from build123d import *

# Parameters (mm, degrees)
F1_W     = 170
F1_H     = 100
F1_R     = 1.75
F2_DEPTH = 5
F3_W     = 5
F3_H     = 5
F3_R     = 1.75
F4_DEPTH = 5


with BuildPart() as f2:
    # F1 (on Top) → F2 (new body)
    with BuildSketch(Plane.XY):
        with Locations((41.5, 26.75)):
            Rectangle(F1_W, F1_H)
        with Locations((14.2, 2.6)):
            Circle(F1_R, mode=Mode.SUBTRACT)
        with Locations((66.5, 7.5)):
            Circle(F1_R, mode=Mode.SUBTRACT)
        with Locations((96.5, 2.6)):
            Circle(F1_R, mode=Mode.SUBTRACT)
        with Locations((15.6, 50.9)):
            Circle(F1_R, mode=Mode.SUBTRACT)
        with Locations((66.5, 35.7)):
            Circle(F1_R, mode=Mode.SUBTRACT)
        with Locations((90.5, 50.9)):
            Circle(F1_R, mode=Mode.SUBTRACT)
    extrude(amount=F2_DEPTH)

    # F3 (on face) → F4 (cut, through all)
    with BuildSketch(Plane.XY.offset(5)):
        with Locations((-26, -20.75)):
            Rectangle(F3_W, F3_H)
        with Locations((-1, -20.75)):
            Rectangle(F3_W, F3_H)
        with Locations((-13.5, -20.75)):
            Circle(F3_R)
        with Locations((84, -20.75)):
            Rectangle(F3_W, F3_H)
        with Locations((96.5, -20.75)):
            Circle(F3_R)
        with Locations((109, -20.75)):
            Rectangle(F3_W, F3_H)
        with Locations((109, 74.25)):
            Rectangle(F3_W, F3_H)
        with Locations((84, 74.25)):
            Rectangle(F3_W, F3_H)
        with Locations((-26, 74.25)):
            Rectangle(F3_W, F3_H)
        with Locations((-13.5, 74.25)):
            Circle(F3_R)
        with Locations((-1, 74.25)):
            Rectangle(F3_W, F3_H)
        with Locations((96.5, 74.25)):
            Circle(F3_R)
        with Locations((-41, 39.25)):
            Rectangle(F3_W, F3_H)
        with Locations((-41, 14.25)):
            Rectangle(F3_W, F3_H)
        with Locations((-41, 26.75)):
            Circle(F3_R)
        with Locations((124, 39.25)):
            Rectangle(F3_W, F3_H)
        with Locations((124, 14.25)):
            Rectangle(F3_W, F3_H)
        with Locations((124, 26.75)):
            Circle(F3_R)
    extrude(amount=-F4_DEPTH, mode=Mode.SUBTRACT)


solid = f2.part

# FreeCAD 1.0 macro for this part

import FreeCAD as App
import Part
import Sketcher

V = App.Vector
Q = App.Units.Quantity


def add_polygon(sketch, points):
    """Adds a closed chain of lines whose ends are joined by coincident constraints."""
    first, n = sketch.GeometryCount, len(points)
    for a, b in zip(points, points[1:] + points[:1]):
        sketch.addGeometry(Part.LineSegment(App.Vector(*a, 0), App.Vector(*b, 0)), False)
    for i in range(n):
        sketch.addConstraint(Sketcher.Constraint("Coincident", first + i, 2, first + (i + 1) % n, 1))

doc = App.newDocument("Part")
body = doc.addObject("PartDesign::Body", "Body")

# Sketch on XY plane
sketch1 = body.newObject("Sketcher::SketchObject", "Sketch")
sketch1.AttachmentSupport = (doc.getObject("XY_Plane"), [""])
sketch1.MapMode = "FlatFace"
add_polygon(sketch1, [(-43.5, 76.8), (-43.5, -23.2), (126.5, -23.2), (126.5, 76.8)])  # lines 0-3
sketch1.addGeometry(Part.Circle(V(14.2, 2.6, 0), V(0, 0, 1), 1.8), False)  # 4
sketch1.addGeometry(Part.Circle(V(66.5, 7.5, 0), V(0, 0, 1), 1.8), False)  # 5
sketch1.addGeometry(Part.Circle(V(96.5, 2.6, 0), V(0, 0, 1), 1.8), False)  # 6
sketch1.addGeometry(Part.Circle(V(15.6, 50.9, 0), V(0, 0, 1), 1.8), False)  # 7
sketch1.addGeometry(Part.Circle(V(66.5, 35.7, 0), V(0, 0, 1), 1.8), False)  # 8
sketch1.addGeometry(Part.Circle(V(90.5, 50.9, 0), V(0, 0, 1), 1.8), False)  # 9
sketch1.addConstraint([
    Sketcher.Constraint("Vertical", 0),
    Sketcher.Constraint("Horizontal", 1),
    Sketcher.Constraint("Vertical", 2),
    Sketcher.Constraint("Horizontal", 3),
    Sketcher.Constraint("Equal", 4, 5),
    Sketcher.Constraint("Equal", 5, 6),
    Sketcher.Constraint("Equal", 6, 7),
    Sketcher.Constraint("Equal", 7, 8),
    Sketcher.Constraint("Equal", 8, 9),
    Sketcher.Constraint("Horizontal", 4, 3, 6, 3),
    Sketcher.Constraint("Horizontal", 7, 3, 9, 3),
    Sketcher.Constraint("Vertical", 5, 3, 8, 3),
    Sketcher.Constraint("Diameter", 4, Q("3.5 mm")),
    Sketcher.Constraint("DistanceX", 1, 1, 1, 2, Q("170 mm")),
    Sketcher.Constraint("DistanceY", 0, 2, 0, 1, Q("100 mm")),
    Sketcher.Constraint("DistanceX", 5, 3, 6, 3, Q("30 mm")),
    Sketcher.Constraint("DistanceX", 8, 3, 9, 3, Q("24 mm")),
    Sketcher.Constraint("DistanceX", 0, 2, 5, 3, Q("110 mm")),
    Sketcher.Constraint("DistanceX", -1, 1, 4, 3, Q("14.2 mm")),
    Sketcher.Constraint("DistanceY", -1, 1, 4, 3, Q("2.6 mm")),
    Sketcher.Constraint("DistanceX", -1, 1, 5, 3, Q("66.5 mm")),
    Sketcher.Constraint("DistanceY", -1, 1, 5, 3, Q("7.5 mm")),
    Sketcher.Constraint("DistanceX", -1, 1, 7, 3, Q("15.6 mm")),
    Sketcher.Constraint("DistanceY", -1, 1, 7, 3, Q("50.9 mm")),
    Sketcher.Constraint("DistanceY", -1, 1, 8, 3, Q("35.7 mm")),
    Sketcher.Constraint("DistanceY", 0, 2, -1, 1, Q("23.25 mm")),
])
pad1 = body.newObject("PartDesign::Pad", "Pad")
pad1.Profile = sketch1
pad1.Length = 5

# Sketch on XY plane
sketch2 = body.newObject("Sketcher::SketchObject", "Sketch001")
sketch2.AttachmentSupport = (doc.getObject("XY_Plane"), [""])
sketch2.MapMode = "FlatFace"
sketch2.AttachmentOffset = App.Placement(V(0, 0, 5), App.Rotation())
add_polygon(sketch2, [(-28.5, -18.2), (-28.5, -23.2), (-23.5, -23.2), (-23.5, -18.2)])  # lines 0-3
add_polygon(sketch2, [(-3.5, -18.2), (-3.5, -23.2), (1.5, -23.2), (1.5, -18.2)])  # lines 4-7
sketch2.addGeometry(Part.Circle(V(-13.5, -20.8, 0), V(0, 0, 1), 1.8), False)  # 8
add_polygon(sketch2, [(81.5, -18.2), (81.5, -23.2), (86.5, -23.2), (86.5, -18.2)])  # lines 9-12
sketch2.addGeometry(Part.Circle(V(96.5, -20.8, 0), V(0, 0, 1), 1.8), False)  # 13
add_polygon(sketch2, [(106.5, -18.2), (106.5, -23.2), (111.5, -23.2), (111.5, -18.2)])  # lines 14-17
add_polygon(sketch2, [(106.5, 76.8), (106.5, 71.8), (111.5, 71.8), (111.5, 76.8)])  # lines 18-21
add_polygon(sketch2, [(81.5, 76.8), (81.5, 71.8), (86.5, 71.8), (86.5, 76.8)])  # lines 22-25
add_polygon(sketch2, [(-28.5, 76.8), (-28.5, 71.8), (-23.5, 71.8), (-23.5, 76.8)])  # lines 26-29
sketch2.addGeometry(Part.Circle(V(-13.5, 74.2, 0), V(0, 0, 1), 1.8), False)  # 30
add_polygon(sketch2, [(-3.5, 76.8), (-3.5, 71.8), (1.5, 71.8), (1.5, 76.8)])  # lines 31-34
sketch2.addGeometry(Part.Circle(V(96.5, 74.2, 0), V(0, 0, 1), 1.8), False)  # 35
add_polygon(sketch2, [(-43.5, 41.8), (-43.5, 36.8), (-38.5, 36.8), (-38.5, 41.8)])  # lines 36-39
add_polygon(sketch2, [(-43.5, 16.8), (-43.5, 11.8), (-38.5, 11.8), (-38.5, 16.8)])  # lines 40-43
sketch2.addGeometry(Part.Circle(V(-41, 26.8, 0), V(0, 0, 1), 1.8), False)  # 44
add_polygon(sketch2, [(121.5, 41.8), (121.5, 36.8), (126.5, 36.8), (126.5, 41.8)])  # lines 45-48
add_polygon(sketch2, [(121.5, 16.8), (121.5, 11.8), (126.5, 11.8), (126.5, 16.8)])  # lines 49-52
sketch2.addGeometry(Part.Circle(V(124, 26.8, 0), V(0, 0, 1), 1.8), False)  # 53
sketch2.addConstraint([
    Sketcher.Constraint("Vertical", 0),
    Sketcher.Constraint("Horizontal", 1),
    Sketcher.Constraint("Vertical", 2),
    Sketcher.Constraint("Horizontal", 3),
    Sketcher.Constraint("Vertical", 4),
    Sketcher.Constraint("Horizontal", 5),
    Sketcher.Constraint("Vertical", 6),
    Sketcher.Constraint("Horizontal", 7),
    Sketcher.Constraint("Vertical", 9),
    Sketcher.Constraint("Horizontal", 10),
    Sketcher.Constraint("Vertical", 11),
    Sketcher.Constraint("Horizontal", 12),
    Sketcher.Constraint("Vertical", 14),
    Sketcher.Constraint("Horizontal", 15),
    Sketcher.Constraint("Vertical", 16),
    Sketcher.Constraint("Horizontal", 17),
    Sketcher.Constraint("Vertical", 18),
    Sketcher.Constraint("Horizontal", 19),
    Sketcher.Constraint("Vertical", 20),
    Sketcher.Constraint("Horizontal", 21),
    Sketcher.Constraint("Vertical", 22),
    Sketcher.Constraint("Horizontal", 23),
    Sketcher.Constraint("Vertical", 24),
    Sketcher.Constraint("Horizontal", 25),
    Sketcher.Constraint("Vertical", 26),
    Sketcher.Constraint("Horizontal", 27),
    Sketcher.Constraint("Vertical", 28),
    Sketcher.Constraint("Horizontal", 29),
    Sketcher.Constraint("Vertical", 31),
    Sketcher.Constraint("Horizontal", 32),
    Sketcher.Constraint("Vertical", 33),
    Sketcher.Constraint("Horizontal", 34),
    Sketcher.Constraint("Vertical", 36),
    Sketcher.Constraint("Horizontal", 37),
    Sketcher.Constraint("Vertical", 38),
    Sketcher.Constraint("Horizontal", 39),
    Sketcher.Constraint("Vertical", 40),
    Sketcher.Constraint("Horizontal", 41),
    Sketcher.Constraint("Vertical", 42),
    Sketcher.Constraint("Horizontal", 43),
    Sketcher.Constraint("Vertical", 45),
    Sketcher.Constraint("Horizontal", 46),
    Sketcher.Constraint("Vertical", 47),
    Sketcher.Constraint("Horizontal", 48),
    Sketcher.Constraint("Vertical", 49),
    Sketcher.Constraint("Horizontal", 50),
    Sketcher.Constraint("Vertical", 51),
    Sketcher.Constraint("Horizontal", 52),
    Sketcher.Constraint("Equal", 8, 13),
    Sketcher.Constraint("Equal", 13, 30),
    Sketcher.Constraint("Equal", 30, 35),
    Sketcher.Constraint("Equal", 35, 44),
    Sketcher.Constraint("Equal", 44, 53),
    Sketcher.Constraint("Horizontal", 8, 3, 13, 3),
    Sketcher.Constraint("Horizontal", 30, 3, 35, 3),
    Sketcher.Constraint("Horizontal", 44, 3, 53, 3),
    Sketcher.Constraint("Horizontal", 1, 2, 4, 2),
    Sketcher.Constraint("Horizontal", 3, 2, 6, 2),
    Sketcher.Constraint("Horizontal", 5, 2, 9, 2),
    Sketcher.Constraint("Horizontal", 7, 2, 11, 2),
    Sketcher.Constraint("Horizontal", 10, 2, 14, 2),
    Sketcher.Constraint("Horizontal", 12, 2, 16, 2),
    Sketcher.Constraint("Horizontal", 19, 2, 22, 2),
    Sketcher.Constraint("Horizontal", 21, 2, 24, 2),
    Sketcher.Constraint("Horizontal", 23, 2, 26, 2),
    Sketcher.Constraint("Horizontal", 25, 2, 28, 2),
    Sketcher.Constraint("Horizontal", 27, 2, 31, 2),
    Sketcher.Constraint("Horizontal", 29, 2, 33, 2),
    Sketcher.Constraint("Horizontal", 37, 2, 45, 2),
    Sketcher.Constraint("Horizontal", 39, 2, 47, 2),
    Sketcher.Constraint("Horizontal", 41, 2, 49, 2),
    Sketcher.Constraint("Horizontal", 43, 2, 51, 2),
    Sketcher.Constraint("Vertical", 8, 3, 30, 3),
    Sketcher.Constraint("Vertical", 13, 3, 35, 3),
    Sketcher.Constraint("Vertical", 17, 2, 18, 2),
    Sketcher.Constraint("Vertical", 16, 2, 19, 2),
    Sketcher.Constraint("Vertical", 12, 2, 22, 2),
    Sketcher.Constraint("Vertical", 11, 2, 23, 2),
    Sketcher.Constraint("Vertical", 3, 2, 26, 2),
    Sketcher.Constraint("Vertical", 2, 2, 27, 2),
    Sketcher.Constraint("Vertical", 7, 2, 31, 2),
    Sketcher.Constraint("Vertical", 6, 2, 32, 2),
    Sketcher.Constraint("Vertical", 39, 2, 40, 2),
    Sketcher.Constraint("Vertical", 38, 2, 41, 2),
    Sketcher.Constraint("Vertical", 48, 2, 49, 2),
    Sketcher.Constraint("Vertical", 47, 2, 50, 2),
    Sketcher.Constraint("Equal", 3, 5),
    Sketcher.Constraint("Equal", 7, 10),
    Sketcher.Constraint("Equal", 12, 15),
    Sketcher.Constraint("Equal", 34, 37),
    Sketcher.Constraint("Equal", 43, 46),
    Sketcher.Constraint("Equal", 52, 0),
    Sketcher.Constraint("Equal", 16, 18),
    Sketcher.Constraint("Equal", 33, 36),
    Sketcher.Constraint("Equal", 38, 40),
    Sketcher.Constraint("Diameter", 8, Q("3.5 mm")),
    Sketcher.Constraint("DistanceX", 1, 1, 1, 2, Q("5 mm")),
    Sketcher.Constraint("DistanceX", 44, 3, -1, 1, Q("41 mm")),
    Sketcher.Constraint("DistanceX", -1, 1, 53, 3, Q("124 mm")),
    Sketcher.Constraint("DistanceX", 8, 3, 13, 3, Q("110 mm")),
    Sketcher.Constraint("DistanceY", 8, 3, 30, 3, Q("95 mm")),
    Sketcher.Constraint("DistanceX", 0, 2, 8, 3, Q("15 mm")),
    Sketcher.Constraint("DistanceY", 0, 2, 44, 3, Q("50 mm")),
    Sketcher.Constraint("DistanceX", 8, 3, 4, 2, Q("10 mm")),
    Sketcher.Constraint("DistanceX", 9, 2, 13, 3, Q("15 mm")),
    Sketcher.Constraint("DistanceX", 13, 3, 14, 2, Q("10 mm")),
    Sketcher.Constraint("DistanceY", 53, 3, 18, 2, Q("45 mm")),
    Sketcher.Constraint("DistanceY", 44, 3, 36, 2, Q("10 mm")),
    Sketcher.Constraint("DistanceX", 36, 2, 26, 2, Q("15 mm")),
    Sketcher.Constraint("DistanceY", 40, 2, 44, 3, Q("15 mm")),
    Sketcher.Constraint("DistanceX", 19, 2, 45, 2, Q("10 mm")),
    Sketcher.Constraint("DistanceX", 8, 3, -1, 1, Q("13.5 mm")),
    Sketcher.Constraint("DistanceY", 8, 3, 44, 3, Q("47.5 mm")),
    Sketcher.Constraint("DistanceY", 8, 3, -1, 1, Q("20.75 mm")),
])
pocket1 = body.newObject("PartDesign::Pocket", "Pocket")
pocket1.Profile = sketch2
pocket1.Type = "ThroughAll"

doc.recompute()
